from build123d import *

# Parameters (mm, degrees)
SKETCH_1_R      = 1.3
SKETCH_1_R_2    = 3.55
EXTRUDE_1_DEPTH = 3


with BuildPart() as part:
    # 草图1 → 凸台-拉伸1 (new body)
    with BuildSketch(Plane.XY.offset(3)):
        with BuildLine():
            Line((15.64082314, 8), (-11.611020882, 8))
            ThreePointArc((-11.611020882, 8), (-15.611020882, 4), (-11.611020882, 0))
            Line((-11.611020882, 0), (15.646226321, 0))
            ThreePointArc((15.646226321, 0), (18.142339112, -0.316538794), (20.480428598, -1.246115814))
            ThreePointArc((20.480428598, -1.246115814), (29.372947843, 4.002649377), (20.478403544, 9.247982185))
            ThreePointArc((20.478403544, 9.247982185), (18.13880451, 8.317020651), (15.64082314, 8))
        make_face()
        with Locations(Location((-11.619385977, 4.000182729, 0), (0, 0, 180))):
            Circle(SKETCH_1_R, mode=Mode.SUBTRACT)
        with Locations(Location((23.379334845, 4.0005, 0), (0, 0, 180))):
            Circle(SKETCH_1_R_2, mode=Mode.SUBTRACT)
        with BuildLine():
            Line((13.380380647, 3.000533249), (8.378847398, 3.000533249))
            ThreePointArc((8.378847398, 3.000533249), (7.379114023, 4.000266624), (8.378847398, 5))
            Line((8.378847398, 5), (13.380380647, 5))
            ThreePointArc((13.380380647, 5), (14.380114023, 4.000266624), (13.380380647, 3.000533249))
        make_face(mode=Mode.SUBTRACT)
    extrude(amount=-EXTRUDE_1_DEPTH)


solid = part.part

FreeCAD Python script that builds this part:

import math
import FreeCAD as App
import Part
import Sketcher

doc = App.newDocument("Part")
body = doc.addObject("PartDesign::Body", "Body")

sketch1 = doc.addObject("Sketcher::SketchObject", "Sketch")
body.addObject(sketch1)
sketch1.AttachmentSupport = (doc.XY_Plane, [""])
sketch1.MapMode = "FlatFace"
sketch1.AttachmentOffset = App.Placement(App.Vector(0, 0, 3), App.Rotation())
sketch1.addGeometry([
    Part.LineSegment(App.Vector(15.6, 8, 0), App.Vector(-11.6, 8, 0)),
    Part.ArcOfCircle(Part.Circle(App.Vector(-11.6, 4, 0), App.Vector(0, 0, 1), 4), math.radians(90), math.radians(270)),
    Part.LineSegment(App.Vector(-11.6, 0, 0), App.Vector(15.6, 0, 0)),
    Part.ArcOfCircle(Part.Circle(App.Vector(15.6, -10, 0), App.Vector(0, 0, 1), 10), math.radians(61), math.radians(90)),
    Part.ArcOfCircle(Part.Circle(App.Vector(23.4, 4, 0), App.Vector(0, 0, 1), 6), math.radians(-119), math.radians(119)),
    Part.ArcOfCircle(Part.Circle(App.Vector(15.6, 18, 0), App.Vector(0, 0, 1), 10), math.radians(-90), math.radians(-61)),
    Part.Circle(App.Vector(-11.6, 4, 0), App.Vector(0, 0, 1), 1.3),
    Part.ArcOfCircle(Part.Circle(App.Vector(13.4, 4, 0), App.Vector(0, 0, 1), 1), math.radians(-90), math.radians(90)),
    Part.LineSegment(App.Vector(13.4, 3, 0), App.Vector(8.4, 3, 0)),
    Part.ArcOfCircle(Part.Circle(App.Vector(8.4, 4, 0), App.Vector(0, 0, 1), 1), math.radians(90), math.radians(270)),
    Part.LineSegment(App.Vector(8.4, 5, 0), App.Vector(13.4, 5, 0)),
    Part.Circle(App.Vector(23.4, 4, 0), App.Vector(0, 0, 1), 3.5),
], False)
sketch1.addConstraint([
    Sketcher.Constraint("Tangent", 0, 2, 1, 1),
    Sketcher.Constraint("Tangent", 1, 2, 2, 1),
    Sketcher.Constraint("Tangent", 2, 2, 3, 2),
    Sketcher.Constraint("Tangent", 3, 1, 4, 1),
    Sketcher.Constraint("Tangent", 4, 2, 5, 2),
    Sketcher.Constraint("Tangent", 5, 1, 0, 1),
    Sketcher.Constraint("Tangent", 7, 1, 8, 1),
    Sketcher.Constraint("Tangent", 8, 2, 9, 2),
    Sketcher.Constraint("Tangent", 9, 1, 10, 1),
    Sketcher.Constraint("Tangent", 10, 2, 7, 2),
    Sketcher.Constraint("Horizontal", 0),
    Sketcher.Constraint("Horizontal", 2),
    Sketcher.Constraint("Horizontal", 8),
    Sketcher.Constraint("Horizontal", 10),
    Sketcher.Constraint("Equal", 3, 5),
    Sketcher.Constraint("PointOnObject", 1, 2, -1),
    Sketcher.Constraint("Radius", 1, 4.0),
    Sketcher.Constraint("Radius", 3, 10.0),
    Sketcher.Constraint("Diameter", 6, 2.6),
    Sketcher.Constraint("Diameter", 11, 7.1),
    Sketcher.Constraint("DistanceY", -1, 1, 9, 1, 5.0),
    Sketcher.Constraint("Radius", 4, 5.994606),
    Sketcher.Constraint("Radius", 7, 0.999733),
    Sketcher.Constraint("DistanceY", -1, 1, 11, 3, 4.0005),
    Sketcher.Constraint("DistanceX", 1, 3, 7, 3, 24.991402),
    Sketcher.Constraint("DistanceX", 0, 2, 0, 1, 27.251844),
    Sketcher.Constraint("DistanceX", 2, 1, 2, 2, 27.257247),
    Sketcher.Constraint("DistanceX", 8, 2, 8, 1, 5.001533),
    Sketcher.Constraint("DistanceX", 1, 3, -1, 1, 11.611021),
    Sketcher.Constraint("DistanceX", 6, 3, 5, 3, 27.260209),
    Sketcher.Constraint("DistanceY", 6, 3, 4, 3, 0.00131),
    Sketcher.Constraint("DistanceX", 3, 3, 11, 3, 7.733109),
])
pad1 = doc.addObject("PartDesign::Pad", "Pad")
body.addObject(pad1)
pad1.Profile = sketch1
pad1.Length = 3
pad1.Reversed = True

doc.recompute()
